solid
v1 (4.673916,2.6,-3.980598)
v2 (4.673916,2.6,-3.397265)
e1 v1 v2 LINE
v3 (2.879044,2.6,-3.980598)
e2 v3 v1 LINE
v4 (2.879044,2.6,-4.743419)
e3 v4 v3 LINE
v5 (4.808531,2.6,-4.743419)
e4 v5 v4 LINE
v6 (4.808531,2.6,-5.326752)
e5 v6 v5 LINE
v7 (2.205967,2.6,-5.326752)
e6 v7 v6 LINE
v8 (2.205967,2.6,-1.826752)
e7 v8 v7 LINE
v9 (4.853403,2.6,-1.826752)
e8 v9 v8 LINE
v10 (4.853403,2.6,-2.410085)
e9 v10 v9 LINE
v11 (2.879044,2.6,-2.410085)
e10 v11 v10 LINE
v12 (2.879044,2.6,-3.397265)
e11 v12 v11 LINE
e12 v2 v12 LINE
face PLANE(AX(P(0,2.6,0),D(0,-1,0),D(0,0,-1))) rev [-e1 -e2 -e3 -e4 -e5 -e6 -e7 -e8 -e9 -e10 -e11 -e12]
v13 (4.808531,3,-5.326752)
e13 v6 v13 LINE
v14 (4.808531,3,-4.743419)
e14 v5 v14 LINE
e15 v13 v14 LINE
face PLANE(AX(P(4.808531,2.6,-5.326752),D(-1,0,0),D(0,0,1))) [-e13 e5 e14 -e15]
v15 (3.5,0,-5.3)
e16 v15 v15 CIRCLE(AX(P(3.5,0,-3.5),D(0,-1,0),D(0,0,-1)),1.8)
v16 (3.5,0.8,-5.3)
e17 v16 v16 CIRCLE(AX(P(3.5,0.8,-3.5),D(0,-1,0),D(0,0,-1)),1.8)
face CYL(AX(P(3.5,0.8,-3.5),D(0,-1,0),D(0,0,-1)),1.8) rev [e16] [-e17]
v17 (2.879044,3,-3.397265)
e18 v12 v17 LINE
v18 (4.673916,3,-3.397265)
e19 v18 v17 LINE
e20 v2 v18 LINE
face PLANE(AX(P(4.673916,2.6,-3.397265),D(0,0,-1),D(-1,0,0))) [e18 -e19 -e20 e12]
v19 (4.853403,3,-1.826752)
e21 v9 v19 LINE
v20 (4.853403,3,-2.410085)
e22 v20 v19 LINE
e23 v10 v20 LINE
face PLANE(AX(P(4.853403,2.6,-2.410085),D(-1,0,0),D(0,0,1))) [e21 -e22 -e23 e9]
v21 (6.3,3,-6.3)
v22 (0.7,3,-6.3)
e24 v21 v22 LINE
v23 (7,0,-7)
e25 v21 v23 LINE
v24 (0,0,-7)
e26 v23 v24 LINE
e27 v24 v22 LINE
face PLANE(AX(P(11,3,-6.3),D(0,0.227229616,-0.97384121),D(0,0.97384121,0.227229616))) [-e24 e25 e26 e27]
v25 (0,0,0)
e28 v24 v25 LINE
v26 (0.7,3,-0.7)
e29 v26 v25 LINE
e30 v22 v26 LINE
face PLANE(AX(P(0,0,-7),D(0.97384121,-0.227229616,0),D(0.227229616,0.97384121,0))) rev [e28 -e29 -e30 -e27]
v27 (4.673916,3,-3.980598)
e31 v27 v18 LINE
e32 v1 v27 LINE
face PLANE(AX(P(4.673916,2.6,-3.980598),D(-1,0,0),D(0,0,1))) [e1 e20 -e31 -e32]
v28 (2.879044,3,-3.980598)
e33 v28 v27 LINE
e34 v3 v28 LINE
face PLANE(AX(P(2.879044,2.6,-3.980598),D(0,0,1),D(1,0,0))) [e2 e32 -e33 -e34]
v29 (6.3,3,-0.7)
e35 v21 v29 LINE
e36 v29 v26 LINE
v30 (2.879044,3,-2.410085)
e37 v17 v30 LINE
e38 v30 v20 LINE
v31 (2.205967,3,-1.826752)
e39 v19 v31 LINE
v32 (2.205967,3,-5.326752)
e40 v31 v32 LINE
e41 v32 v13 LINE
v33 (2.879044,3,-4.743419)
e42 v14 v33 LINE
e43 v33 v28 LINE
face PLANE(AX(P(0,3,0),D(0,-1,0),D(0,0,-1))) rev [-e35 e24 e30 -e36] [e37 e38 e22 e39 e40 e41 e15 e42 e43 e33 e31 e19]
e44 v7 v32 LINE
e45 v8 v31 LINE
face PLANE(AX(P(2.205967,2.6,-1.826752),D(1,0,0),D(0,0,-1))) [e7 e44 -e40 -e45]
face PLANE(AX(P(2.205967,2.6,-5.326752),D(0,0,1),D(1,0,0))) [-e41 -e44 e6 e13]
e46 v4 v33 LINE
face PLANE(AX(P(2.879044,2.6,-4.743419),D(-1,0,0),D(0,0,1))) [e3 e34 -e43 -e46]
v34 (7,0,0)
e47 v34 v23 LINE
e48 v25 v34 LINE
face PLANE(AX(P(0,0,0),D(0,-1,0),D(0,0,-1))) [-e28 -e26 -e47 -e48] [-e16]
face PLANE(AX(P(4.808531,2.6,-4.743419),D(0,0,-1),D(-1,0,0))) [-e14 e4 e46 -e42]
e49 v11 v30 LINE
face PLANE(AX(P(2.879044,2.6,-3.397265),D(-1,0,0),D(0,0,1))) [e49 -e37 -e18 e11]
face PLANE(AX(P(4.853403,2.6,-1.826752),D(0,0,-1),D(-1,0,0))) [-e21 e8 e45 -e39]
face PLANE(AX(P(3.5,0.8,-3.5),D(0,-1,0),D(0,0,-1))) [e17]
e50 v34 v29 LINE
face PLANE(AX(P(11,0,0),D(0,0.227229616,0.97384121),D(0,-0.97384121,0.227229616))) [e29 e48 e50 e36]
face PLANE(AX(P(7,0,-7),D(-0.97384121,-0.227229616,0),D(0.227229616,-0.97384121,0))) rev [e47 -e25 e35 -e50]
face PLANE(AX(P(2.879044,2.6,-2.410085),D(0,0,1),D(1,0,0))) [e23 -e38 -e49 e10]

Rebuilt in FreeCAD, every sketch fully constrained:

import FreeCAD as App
import Part
import Sketcher
from FreeCAD import Vector
Q = App.Units.Quantity

doc = App.newDocument("Part")
body = doc.addObject("PartDesign::Body", "Body")

# Sketch on XZ plane
sketch1 = doc.addObject("Sketcher::SketchObject", "Sketch")
body.addObject(sketch1)
sketch1.AttachmentSupport = (doc.XZ_Plane, [""])
sketch1.MapMode = "FlatFace"
sketch1.addGeometry([
    Part.LineSegment(Vector(0, -7, 0), Vector(0, 0, 0)),
    Part.LineSegment(Vector(0, 0, 0), Vector(7, 0, 0)),
    Part.LineSegment(Vector(7, 0, 0), Vector(7, -7, 0)),
    Part.LineSegment(Vector(7, -7, 0), Vector(0, -7, 0)),
], False)
sketch1.addConstraint([
    Sketcher.Constraint("Coincident", 0, 2, 1, 1),
    Sketcher.Constraint("Coincident", 1, 2, 2, 1),
    Sketcher.Constraint("Coincident", 2, 2, 3, 1),
    Sketcher.Constraint("Coincident", 3, 2, 0, 1),
    Sketcher.Constraint("Vertical", 0),
    Sketcher.Constraint("Horizontal", 1),
    Sketcher.Constraint("Vertical", 2),
    Sketcher.Constraint("Horizontal", 3),
    Sketcher.Constraint("Coincident", 0, 2, -1, 1),
    Sketcher.Constraint("Equal", 3, 0),
    Sketcher.Constraint("DistanceX", 1, 1, 1, 2, Q("7 mm")),
])
pad1 = doc.addObject("PartDesign::Pad", "Pad")
body.addObject(pad1)
pad1.Profile = sketch1
pad1.Length = 3
pad1.Reversed = True

# Sketch on XY plane
sketch2 = doc.addObject("Sketcher::SketchObject", "Sketch001")
body.addObject(sketch2)
sketch2.AttachmentSupport = (doc.XY_Plane, [""])
sketch2.MapMode = "FlatFace"
sketch2.addGeometry([
    Part.LineSegment(Vector(0, 0, 0), Vector(0.7, 3, 0)),  # 0
    Part.LineSegment(Vector(0.7, 3, 0), Vector(0, 3, 0)),  # 1
    Part.LineSegment(Vector(0, 3, 0), Vector(0, 0, 0)),  # 2
    Part.LineSegment(Vector(6.3, 3, 0), Vector(7, 0, 0)),  # 3
    Part.LineSegment(Vector(7, 0, 0), Vector(7, 3, 0)),  # 4
    Part.LineSegment(Vector(7, 3, 0), Vector(6.3, 3, 0)),  # 5
], False)
sketch2.addConstraint([
    Sketcher.Constraint("Coincident", 0, 2, 1, 1),
    Sketcher.Constraint("Coincident", 1, 2, 2, 1),
    Sketcher.Constraint("Coincident", 2, 2, 0, 1),
    Sketcher.Constraint("Coincident", 3, 2, 4, 1),
    Sketcher.Constraint("Coincident", 4, 2, 5, 1),
    Sketcher.Constraint("Coincident", 5, 2, 3, 1),
    Sketcher.Constraint("Horizontal", 1),
    Sketcher.Constraint("Vertical", 2),
    Sketcher.Constraint("Vertical", 4),
    Sketcher.Constraint("Horizontal", 5),
    Sketcher.Constraint("Coincident", 2, 2, -1, 1),
    Sketcher.Constraint("PointOnObject", 3, 2, -1),
    Sketcher.Constraint("Horizontal", 1, 2, 4, 2),
    Sketcher.Constraint("Equal", 1, 5),
    Sketcher.Constraint("DistanceY", 2, 2, 2, 1, Q("3 mm")),
    Sketcher.Constraint("DistanceX", 1, 2, 1, 1, Q("0.7 mm")),
    Sketcher.Constraint("DistanceX", -1, 1, 3, 2, Q("7 mm")),
])
pocket1 = doc.addObject("PartDesign::Pocket", "Pocket")
body.addObject(pocket1)
pocket1.Profile = sketch2
pocket1.Length = 7

# Sketch on YZ plane
sketch3 = doc.addObject("Sketcher::SketchObject", "Sketch002")
body.addObject(sketch3)
sketch3.AttachmentSupport = (doc.YZ_Plane, [""])
sketch3.MapMode = "FlatFace"
sketch3.addGeometry([
    Part.LineSegment(Vector(0, 0, 0), Vector(3, -0.7, 0)),  # 0
    Part.LineSegment(Vector(3, -0.7, 0), Vector(3, 0, 0)),  # 1
    Part.LineSegment(Vector(3, 0, 0), Vector(0, 0, 0)),  # 2
    Part.LineSegment(Vector(3, -7, 0), Vector(3, -6.3, 0)),  # 3
    Part.LineSegment(Vector(3, -6.3, 0), Vector(0, -7, 0)),  # 4
    Part.LineSegment(Vector(0, -7, 0), Vector(3, -7, 0)),  # 5
], False)
sketch3.addConstraint([
    Sketcher.Constraint("Coincident", 0, 2, 1, 1),
    Sketcher.Constraint("Coincident", 1, 2, 2, 1),
    Sketcher.Constraint("Coincident", 2, 2, 0, 1),
    Sketcher.Constraint("Coincident", 3, 2, 4, 1),
    Sketcher.Constraint("Coincident", 4, 2, 5, 1),
    Sketcher.Constraint("Coincident", 5, 2, 3, 1),
    Sketcher.Constraint("Vertical", 1),
    Sketcher.Constraint("Horizontal", 2),
    Sketcher.Constraint("Vertical", 3),
    Sketcher.Constraint("Horizontal", 5),
    Sketcher.Constraint("Coincident", 2, 2, -1, 1),
    Sketcher.Constraint("PointOnObject", 4, 2, -2),
    Sketcher.Constraint("Vertical", 1, 2, 3, 2),
    Sketcher.Constraint("Equal", 1, 3),
    Sketcher.Constraint("DistanceX", 2, 2, 2, 1, Q("3 mm")),
    Sketcher.Constraint("DistanceY", 1, 1, 1, 2, Q("0.7 mm")),
    Sketcher.Constraint("DistanceY", 4, 2, -1, 1, Q("7 mm")),
])
pocket2 = doc.addObject("PartDesign::Pocket", "Pocket001")
body.addObject(pocket2)
pocket2.Profile = sketch3
pocket2.Length = 11
pocket2.Reversed = True

# Sketch on XZ plane
sketch4 = doc.addObject("Sketcher::SketchObject", "Sketch003")
body.addObject(sketch4)
sketch4.AttachmentSupport = (doc.XZ_Plane, [""])
sketch4.MapMode = "FlatFace"
sketch4.addGeometry(Part.Circle(Vector(3.5, -3.5, 0), Vector(0, 0, 1), 1.8), False)
sketch4.addConstraint([
    Sketcher.Constraint("Diameter", 0, Q("3.6 mm")),
    Sketcher.Constraint("DistanceX", -1, 1, 0, 3, Q("3.5 mm")),
    Sketcher.Constraint("DistanceY", 0, 3, -1, 1, Q("3.5 mm")),
])
pocket3 = doc.addObject("PartDesign::Pocket", "Pocket002")
body.addObject(pocket3)
pocket3.Profile = sketch4
pocket3.Length = 0.8

# Sketch on XZ plane
sketch5 = doc.addObject("Sketcher::SketchObject", "Sketch004")
body.addObject(sketch5)
sketch5.AttachmentSupport = (doc.XZ_Plane, [""])
sketch5.MapMode = "FlatFace"
sketch5.AttachmentOffset = App.Placement(Vector(0, 0, -3), App.Rotation())
sketch5.addGeometry([
    Part.LineSegment(Vector(2.2, -5.3, 0), Vector(2.2, -1.8, 0)),  # 0
    Part.LineSegment(Vector(2.2, -1.8, 0), Vector(4.9, -1.8, 0)),  # 1
    Part.LineSegment(Vector(4.9, -1.8, 0), Vector(4.9, -2.4, 0)),  # 2
    Part.LineSegment(Vector(4.9, -2.4, 0), Vector(2.9, -2.4, 0)),  # 3
    Part.LineSegment(Vector(2.9, -2.4, 0), Vector(2.9, -3.4, 0)),  # 4
    Part.LineSegment(Vector(2.9, -3.4, 0), Vector(4.7, -3.4, 0)),  # 5
    Part.LineSegment(Vector(4.7, -3.4, 0), Vector(4.7, -4, 0)),  # 6
    Part.LineSegment(Vector(4.7, -4, 0), Vector(2.9, -4, 0)),  # 7
    Part.LineSegment(Vector(2.9, -4, 0), Vector(2.9, -4.7, 0)),  # 8
    Part.LineSegment(Vector(2.9, -4.7, 0), Vector(4.8, -4.7, 0)),  # 9
    Part.LineSegment(Vector(4.8, -4.7, 0), Vector(4.8, -5.3, 0)),  # 10
    Part.LineSegment(Vector(4.8, -5.3, 0), Vector(2.2, -5.3, 0)),  # 11
], False)
sketch5.addConstraint([
    Sketcher.Constraint("Coincident", 0, 2, 1, 1),
    Sketcher.Constraint("Coincident", 1, 2, 2, 1),
    Sketcher.Constraint("Coincident", 2, 2, 3, 1),
    Sketcher.Constraint("Coincident", 3, 2, 4, 1),
    Sketcher.Constraint("Coincident", 4, 2, 5, 1),
    Sketcher.Constraint("Coincident", 5, 2, 6, 1),
    Sketcher.Constraint("Coincident", 6, 2, 7, 1),
    Sketcher.Constraint("Coincident", 7, 2, 8, 1),
    Sketcher.Constraint("Coincident", 8, 2, 9, 1),
    Sketcher.Constraint("Coincident", 9, 2, 10, 1),
    Sketcher.Constraint("Coincident", 10, 2, 11, 1),
    Sketcher.Constraint("Coincident", 11, 2, 0, 1),
    Sketcher.Constraint("Vertical", 0),
    Sketcher.Constraint("Horizontal", 1),
    Sketcher.Constraint("Vertical", 2),
    Sketcher.Constraint("Horizontal", 3),
    Sketcher.Constraint("Vertical", 4),
    Sketcher.Constraint("Horizontal", 5),
    Sketcher.Constraint("Vertical", 6),
    Sketcher.Constraint("Horizontal", 7),
    Sketcher.Constraint("Vertical", 8),
    Sketcher.Constraint("Horizontal", 9),
    Sketcher.Constraint("Vertical", 10),
    Sketcher.Constraint("Horizontal", 11),
    Sketcher.Constraint("Vertical", 4, 2, 7, 2),
    Sketcher.Constraint("Equal", 2, 6),
    Sketcher.Constraint("Equal", 6, 10),
    Sketcher.Constraint("DistanceY", 0, 1, 0, 2, Q("3.5 mm")),
    Sketcher.Constraint("DistanceX", 3, 2, 3, 1, Q("1.974359 mm")),
    Sketcher.Constraint("DistanceX", 5, 1, 5, 2, Q("1.794872 mm")),
    Sketcher.Constraint("DistanceY", 4, 2, 4, 1, Q("0.987179 mm")),
    Sketcher.Constraint("DistanceY", 8, 2, 8, 1, Q("0.762821 mm")),
    Sketcher.Constraint("DistanceY", 6, 2, -1, 1, Q("3.980598 mm")),
    Sketcher.Constraint("DistanceX", 1, 1, 1, 2, Q("2.647436 mm")),
    Sketcher.Constraint("DistanceX", 9, 1, 9, 2, Q("1.929487 mm")),
    Sketcher.Constraint("DistanceX", -1, 1, 9, 2, Q("4.808531 mm")),
])
pocket4 = doc.addObject("PartDesign::Pocket", "Pocket003")
body.addObject(pocket4)
pocket4.Profile = sketch5
pocket4.Length = 0.4
pocket4.Reversed = True

doc.recompute()
